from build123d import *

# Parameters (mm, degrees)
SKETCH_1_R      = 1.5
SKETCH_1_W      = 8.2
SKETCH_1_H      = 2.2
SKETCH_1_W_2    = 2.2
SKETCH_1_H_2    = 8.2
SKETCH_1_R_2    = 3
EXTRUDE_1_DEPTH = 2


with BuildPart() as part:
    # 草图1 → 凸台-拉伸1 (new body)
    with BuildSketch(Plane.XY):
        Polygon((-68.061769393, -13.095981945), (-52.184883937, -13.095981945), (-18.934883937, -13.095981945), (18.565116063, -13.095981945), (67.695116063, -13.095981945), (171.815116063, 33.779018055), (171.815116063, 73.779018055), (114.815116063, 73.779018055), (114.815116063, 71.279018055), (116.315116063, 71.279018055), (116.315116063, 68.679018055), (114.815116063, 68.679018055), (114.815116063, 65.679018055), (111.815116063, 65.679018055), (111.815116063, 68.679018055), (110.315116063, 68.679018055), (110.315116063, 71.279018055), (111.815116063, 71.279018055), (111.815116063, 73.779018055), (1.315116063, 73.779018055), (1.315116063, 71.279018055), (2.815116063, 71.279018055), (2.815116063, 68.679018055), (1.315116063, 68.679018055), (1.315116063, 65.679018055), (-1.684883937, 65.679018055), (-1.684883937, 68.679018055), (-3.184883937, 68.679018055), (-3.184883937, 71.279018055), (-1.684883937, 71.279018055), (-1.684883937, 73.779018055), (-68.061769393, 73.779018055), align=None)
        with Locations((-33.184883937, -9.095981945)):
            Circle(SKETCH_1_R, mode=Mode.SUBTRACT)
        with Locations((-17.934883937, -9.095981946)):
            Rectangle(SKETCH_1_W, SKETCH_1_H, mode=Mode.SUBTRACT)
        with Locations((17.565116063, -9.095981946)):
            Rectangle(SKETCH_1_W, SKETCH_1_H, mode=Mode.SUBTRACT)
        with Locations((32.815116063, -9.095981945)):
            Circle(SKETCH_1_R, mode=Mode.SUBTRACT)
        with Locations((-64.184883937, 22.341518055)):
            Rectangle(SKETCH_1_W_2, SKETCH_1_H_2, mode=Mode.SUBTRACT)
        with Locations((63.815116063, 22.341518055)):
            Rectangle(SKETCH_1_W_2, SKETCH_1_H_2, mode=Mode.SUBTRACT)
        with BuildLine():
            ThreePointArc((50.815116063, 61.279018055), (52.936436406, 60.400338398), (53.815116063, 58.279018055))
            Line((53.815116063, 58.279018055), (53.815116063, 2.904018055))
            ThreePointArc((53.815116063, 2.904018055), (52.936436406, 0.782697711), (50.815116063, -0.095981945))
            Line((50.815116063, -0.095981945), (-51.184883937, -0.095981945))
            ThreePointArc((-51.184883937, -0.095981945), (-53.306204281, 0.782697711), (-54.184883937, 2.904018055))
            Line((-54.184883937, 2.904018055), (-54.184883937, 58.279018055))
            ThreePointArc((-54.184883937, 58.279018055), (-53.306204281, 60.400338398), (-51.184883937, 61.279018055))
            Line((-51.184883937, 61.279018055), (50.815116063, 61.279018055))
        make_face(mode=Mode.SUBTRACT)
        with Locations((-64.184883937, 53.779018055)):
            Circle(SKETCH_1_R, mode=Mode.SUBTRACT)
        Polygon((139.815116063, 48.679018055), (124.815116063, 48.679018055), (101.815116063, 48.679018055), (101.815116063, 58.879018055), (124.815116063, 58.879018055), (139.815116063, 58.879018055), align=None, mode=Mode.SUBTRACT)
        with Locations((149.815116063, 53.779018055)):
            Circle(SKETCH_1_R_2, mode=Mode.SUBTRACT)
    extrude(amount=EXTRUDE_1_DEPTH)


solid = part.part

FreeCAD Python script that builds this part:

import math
import FreeCAD as App
import Part
import Sketcher
from FreeCAD import Vector
Q = App.Units.Quantity

doc = App.newDocument("Part")
body = doc.addObject("PartDesign::Body", "Body")

sketch1 = body.newObject("Sketcher::SketchObject", "Sketch")
sketch1.AttachmentSupport = (doc.getObject("XY_Plane"), [""])
sketch1.MapMode = "FlatFace"
sketch1.addGeometry([
    Part.LineSegment(Vector(-68.1, -13.1, 0), Vector(67.7, -13.1, 0)),
    Part.LineSegment(Vector(67.7, -13.1, 0), Vector(171.8, 33.8, 0)),
    Part.LineSegment(Vector(171.8, 33.8, 0), Vector(171.8, 73.8, 0)),
    Part.LineSegment(Vector(171.8, 73.8, 0), Vector(114.8, 73.8, 0)),
    Part.LineSegment(Vector(114.8, 73.8, 0), Vector(114.8, 71.3, 0)),
    Part.LineSegment(Vector(114.8, 71.3, 0), Vector(116.3, 71.3, 0)),
    Part.LineSegment(Vector(116.3, 71.3, 0), Vector(116.3, 68.7, 0)),
    Part.LineSegment(Vector(116.3, 68.7, 0), Vector(114.8, 68.7, 0)),
    Part.LineSegment(Vector(114.8, 68.7, 0), Vector(114.8, 65.7, 0)),
    Part.LineSegment(Vector(114.8, 65.7, 0), Vector(111.8, 65.7, 0)),
    Part.LineSegment(Vector(111.8, 65.7, 0), Vector(111.8, 68.7, 0)),
    Part.LineSegment(Vector(111.8, 68.7, 0), Vector(110.3, 68.7, 0)),
    Part.LineSegment(Vector(110.3, 68.7, 0), Vector(110.3, 71.3, 0)),
    Part.LineSegment(Vector(110.3, 71.3, 0), Vector(111.8, 71.3, 0)),
    Part.LineSegment(Vector(111.8, 71.3, 0), Vector(111.8, 73.8, 0)),
    Part.LineSegment(Vector(111.8, 73.8, 0), Vector(1.3, 73.8, 0)),
    Part.LineSegment(Vector(1.3, 73.8, 0), Vector(1.3, 71.3, 0)),
    Part.LineSegment(Vector(1.3, 71.3, 0), Vector(2.8, 71.3, 0)),
    Part.LineSegment(Vector(2.8, 71.3, 0), Vector(2.8, 68.7, 0)),
    Part.LineSegment(Vector(2.8, 68.7, 0), Vector(1.3, 68.7, 0)),
    Part.LineSegment(Vector(1.3, 68.7, 0), Vector(1.3, 65.7, 0)),
    Part.LineSegment(Vector(1.3, 65.7, 0), Vector(-1.7, 65.7, 0)),
    Part.LineSegment(Vector(-1.7, 65.7, 0), Vector(-1.7, 68.7, 0)),
    Part.LineSegment(Vector(-1.7, 68.7, 0), Vector(-3.2, 68.7, 0)),
    Part.LineSegment(Vector(-3.2, 68.7, 0), Vector(-3.2, 71.3, 0)),
    Part.LineSegment(Vector(-3.2, 71.3, 0), Vector(-1.7, 71.3, 0)),
    Part.LineSegment(Vector(-1.7, 71.3, 0), Vector(-1.7, 73.8, 0)),
    Part.LineSegment(Vector(-1.7, 73.8, 0), Vector(-68.1, 73.8, 0)),
    Part.LineSegment(Vector(-68.1, 73.8, 0), Vector(-68.1, -13.1, 0)),
    Part.Circle(Vector(-33.2, -9.1, 0), Vector(0, 0, 1), 1.5),
    Part.LineSegment(Vector(-13.8, -10.2, 0), Vector(-22, -10.2, 0)),
    Part.LineSegment(Vector(-22, -10.2, 0), Vector(-22, -8, 0)),
    Part.LineSegment(Vector(-22, -8, 0), Vector(-13.8, -8, 0)),
    Part.LineSegment(Vector(-13.8, -8, 0), Vector(-13.8, -10.2, 0)),
    Part.LineSegment(Vector(21.7, -10.2, 0), Vector(13.5, -10.2, 0)),
    Part.LineSegment(Vector(13.5, -10.2, 0), Vector(13.5, -8, 0)),
    Part.LineSegment(Vector(13.5, -8, 0), Vector(21.7, -8, 0)),
    Part.LineSegment(Vector(21.7, -8, 0), Vector(21.7, -10.2, 0)),
    Part.Circle(Vector(32.8, -9.1, 0), Vector(0, 0, 1), 1.5),
    Part.LineSegment(Vector(-63.1, 18.2, 0), Vector(-65.3, 18.2, 0)),
    Part.LineSegment(Vector(-65.3, 18.2, 0), Vector(-65.3, 26.4, 0)),
    Part.LineSegment(Vector(-65.3, 26.4, 0), Vector(-63.1, 26.4, 0)),
    Part.LineSegment(Vector(-63.1, 26.4, 0), Vector(-63.1, 18.2, 0)),
    Part.LineSegment(Vector(64.9, 18.2, 0), Vector(62.7, 18.2, 0)),
    Part.LineSegment(Vector(62.7, 18.2, 0), Vector(62.7, 26.4, 0)),
    Part.LineSegment(Vector(62.7, 26.4, 0), Vector(64.9, 26.4, 0)),
    Part.LineSegment(Vector(64.9, 26.4, 0), Vector(64.9, 18.2, 0)),
    Part.LineSegment(Vector(-51.2, 61.3, 0), Vector(50.8, 61.3, 0)),
    Part.ArcOfCircle(Part.Circle(Vector(50.8, 58.3, 0), Vector(0, 0, 1), 3), math.radians(0), math.radians(90)),
    Part.LineSegment(Vector(53.8, 58.3, 0), Vector(53.8, 2.9, 0)),
    Part.ArcOfCircle(Part.Circle(Vector(50.8, 2.9, 0), Vector(0, 0, 1), 3), math.radians(-90), math.radians(0)),
    Part.LineSegment(Vector(50.8, -0.1, 0), Vector(-51.2, -0.1, 0)),
    Part.ArcOfCircle(Part.Circle(Vector(-51.2, 2.9, 0), Vector(0, 0, 1), 3), math.radians(180), math.radians(270)),
    Part.LineSegment(Vector(-54.2, 2.9, 0), Vector(-54.2, 58.3, 0)),
    Part.ArcOfCircle(Part.Circle(Vector(-51.2, 58.3, 0), Vector(0, 0, 1), 3), math.radians(90), math.radians(180)),
    Part.Circle(Vector(-64.2, 53.8, 0), Vector(0, 0, 1), 1.5),
    Part.LineSegment(Vector(139.8, 58.9, 0), Vector(139.8, 48.7, 0)),
    Part.LineSegment(Vector(139.8, 48.7, 0), Vector(101.8, 48.7, 0)),
    Part.LineSegment(Vector(101.8, 48.7, 0), Vector(101.8, 58.9, 0)),
    Part.LineSegment(Vector(101.8, 58.9, 0), Vector(139.8, 58.9, 0)),
    Part.Circle(Vector(149.8, 53.8, 0), Vector(0, 0, 1), 3),
], False)
sketch1.addConstraint([
    Sketcher.Constraint("Coincident", 0, 2, 1, 1),
    Sketcher.Constraint("Coincident", 1, 2, 2, 1),
    Sketcher.Constraint("Coincident", 2, 2, 3, 1),
    Sketcher.Constraint("Coincident", 3, 2, 4, 1),
    Sketcher.Constraint("Coincident", 4, 2, 5, 1),
    Sketcher.Constraint("Coincident", 5, 2, 6, 1),
    Sketcher.Constraint("Coincident", 6, 2, 7, 1),
    Sketcher.Constraint("Coincident", 7, 2, 8, 1),
    Sketcher.Constraint("Coincident", 8, 2, 9, 1),
    Sketcher.Constraint("Coincident", 9, 2, 10, 1),
    Sketcher.Constraint("Coincident", 10, 2, 11, 1),
    Sketcher.Constraint("Coincident", 11, 2, 12, 1),
    Sketcher.Constraint("Coincident", 12, 2, 13, 1),
    Sketcher.Constraint("Coincident", 13, 2, 14, 1),
    Sketcher.Constraint("Coincident", 14, 2, 15, 1),
    Sketcher.Constraint("Coincident", 15, 2, 16, 1),
    Sketcher.Constraint("Coincident", 16, 2, 17, 1),
    Sketcher.Constraint("Coincident", 17, 2, 18, 1),
    Sketcher.Constraint("Coincident", 18, 2, 19, 1),
    Sketcher.Constraint("Coincident", 19, 2, 20, 1),
    Sketcher.Constraint("Coincident", 20, 2, 21, 1),
    Sketcher.Constraint("Coincident", 21, 2, 22, 1),
    Sketcher.Constraint("Coincident", 22, 2, 23, 1),
    Sketcher.Constraint("Coincident", 23, 2, 24, 1),
    Sketcher.Constraint("Coincident", 24, 2, 25, 1),
    Sketcher.Constraint("Coincident", 25, 2, 26, 1),
    Sketcher.Constraint("Coincident", 26, 2, 27, 1),
    Sketcher.Constraint("Coincident", 27, 2, 28, 1),
    Sketcher.Constraint("Coincident", 28, 2, 0, 1),
    Sketcher.Constraint("Coincident", 30, 2, 31, 1),
    Sketcher.Constraint("Coincident", 31, 2, 32, 1),
    Sketcher.Constraint("Coincident", 32, 2, 33, 1),
    Sketcher.Constraint("Coincident", 33, 2, 30, 1),
    Sketcher.Constraint("Coincident", 34, 2, 35, 1),
    Sketcher.Constraint("Coincident", 35, 2, 36, 1),
    Sketcher.Constraint("Coincident", 36, 2, 37, 1),
    Sketcher.Constraint("Coincident", 37, 2, 34, 1),
    Sketcher.Constraint("Coincident", 39, 2, 40, 1),
    Sketcher.Constraint("Coincident", 40, 2, 41, 1),
    Sketcher.Constraint("Coincident", 41, 2, 42, 1),
    Sketcher.Constraint("Coincident", 42, 2, 39, 1),
    Sketcher.Constraint("Coincident", 43, 2, 44, 1),
    Sketcher.Constraint("Coincident", 44, 2, 45, 1),
    Sketcher.Constraint("Coincident", 45, 2, 46, 1),
    Sketcher.Constraint("Coincident", 46, 2, 43, 1),
    Sketcher.Constraint("Tangent", 47, 2, 48, 2),
    Sketcher.Constraint("Tangent", 48, 1, 49, 1),
    Sketcher.Constraint("Tangent", 49, 2, 50, 2),
    Sketcher.Constraint("Tangent", 50, 1, 51, 1),
    Sketcher.Constraint("Tangent", 51, 2, 52, 2),
    Sketcher.Constraint("Tangent", 52, 1, 53, 1),
    Sketcher.Constraint("Tangent", 53, 2, 54, 2),
    Sketcher.Constraint("Tangent", 54, 1, 47, 1),
    Sketcher.Constraint("Coincident", 56, 2, 57, 1),
    Sketcher.Constraint("Coincident", 57, 2, 58, 1),
    Sketcher.Constraint("Coincident", 58, 2, 59, 1),
    Sketcher.Constraint("Coincident", 59, 2, 56, 1),
    Sketcher.Constraint("Horizontal", 0),
    Sketcher.Constraint("Vertical", 2),
    Sketcher.Constraint("Horizontal", 3),
    Sketcher.Constraint("Vertical", 4),
    Sketcher.Constraint("Horizontal", 5),
    Sketcher.Constraint("Vertical", 6),
    Sketcher.Constraint("Horizontal", 7),
    Sketcher.Constraint("Vertical", 8),
    Sketcher.Constraint("Horizontal", 9),
    Sketcher.Constraint("Vertical", 10),
    Sketcher.Constraint("Horizontal", 11),
    Sketcher.Constraint("Vertical", 12),
    Sketcher.Constraint("Horizontal", 13),
    Sketcher.Constraint("Vertical", 14),
    Sketcher.Constraint("Horizontal", 15),
    Sketcher.Constraint("Vertical", 16),
    Sketcher.Constraint("Horizontal", 17),
    Sketcher.Constraint("Vertical", 18),
    Sketcher.Constraint("Horizontal", 19),
    Sketcher.Constraint("Vertical", 20),
    Sketcher.Constraint("Horizontal", 21),
    Sketcher.Constraint("Vertical", 22),
    Sketcher.Constraint("Horizontal", 23),
    Sketcher.Constraint("Vertical", 24),
    Sketcher.Constraint("Horizontal", 25),
    Sketcher.Constraint("Vertical", 26),
    Sketcher.Constraint("Horizontal", 27),
    Sketcher.Constraint("Vertical", 28),
    Sketcher.Constraint("Horizontal", 30),
    Sketcher.Constraint("Vertical", 31),
    Sketcher.Constraint("Horizontal", 32),
    Sketcher.Constraint("Vertical", 33),
    Sketcher.Constraint("Horizontal", 34),
    Sketcher.Constraint("Vertical", 35),
    Sketcher.Constraint("Horizontal", 36),
    Sketcher.Constraint("Vertical", 37),
    Sketcher.Constraint("Horizontal", 39),
    Sketcher.Constraint("Vertical", 40),
    Sketcher.Constraint("Horizontal", 41),
    Sketcher.Constraint("Vertical", 42),
    Sketcher.Constraint("Horizontal", 43),
    Sketcher.Constraint("Vertical", 44),
    Sketcher.Constraint("Horizontal", 45),
    Sketcher.Constraint("Vertical", 46),
    Sketcher.Constraint("Horizontal", 47),
    Sketcher.Constraint("Vertical", 49),
    Sketcher.Constraint("Horizontal", 51),
    Sketcher.Constraint("Vertical", 53),
    Sketcher.Constraint("Vertical", 56),
    Sketcher.Constraint("Horizontal", 57),
    Sketcher.Constraint("Vertical", 58),
    Sketcher.Constraint("Horizontal", 59),
    Sketcher.Constraint("Equal", 29, 38),
    Sketcher.Constraint("Equal", 48, 50),
    Sketcher.Constraint("Equal", 50, 52),
    Sketcher.Constraint("Equal", 52, 54),
    Sketcher.Constraint("Equal", 38, 55),
    Sketcher.Constraint("Equal", 54, 60),
    Sketcher.Constraint("Horizontal", 29, 3, 38, 3),
    Sketcher.Constraint("Horizontal", 55, 3, 60, 3),
    Sketcher.Constraint("Horizontal", 7, 2, 10, 2),
    Sketcher.Constraint("Horizontal", 5, 2, 12, 2),
    Sketcher.Constraint("Horizontal", 3, 2, 14, 2),
    Sketcher.Constraint("Horizontal", 13, 2, 16, 2),
    Sketcher.Constraint("Horizontal", 11, 2, 18, 2),
    Sketcher.Constraint("Horizontal", 9, 2, 20, 2),
    Sketcher.Constraint("Horizontal", 19, 2, 22, 2),
    Sketcher.Constraint("Horizontal", 17, 2, 24, 2),
    Sketcher.Constraint("Horizontal", 15, 2, 26, 2),
    Sketcher.Constraint("Horizontal", 33, 2, 34, 2),
    Sketcher.Constraint("Horizontal", 32, 2, 35, 2),
    Sketcher.Constraint("Horizontal", 42, 2, 43, 2),
    Sketcher.Constraint("Horizontal", 41, 2, 44, 2),
    Sketcher.Constraint("Vertical", 4, 2, 7, 2),
    Sketcher.Constraint("Vertical", 10, 2, 13, 2),
    Sketcher.Constraint("Vertical", 16, 2, 19, 2),
    Sketcher.Constraint("Vertical", 22, 2, 25, 2),
    Sketcher.Constraint("Equal", 7, 11),
    Sketcher.Constraint("Equal", 13, 17),
    Sketcher.Constraint("Equal", 9, 21),
    Sketcher.Constraint("Equal", 19, 23),
    Sketcher.Constraint("Equal", 32, 34),
    Sketcher.Constraint("Equal", 41, 43),
    Sketcher.Constraint("Equal", 21, 8),
    Sketcher.Constraint("Equal", 45, 31),
    Sketcher.Constraint("Equal", 36, 40),
    Sketcher.Constraint("Diameter", 29, Q("3 mm")),
    Sketcher.Constraint("Diameter", 60, Q("6 mm")),
    Sketcher.Constraint("DistanceX", 3, 2, 3, 1, Q("57 mm")),
    Sketcher.Constraint("DistanceX", 9, 2, 9, 1, Q("3 mm")),
    Sketcher.Constraint("DistanceX", 47, 1, 47, 2, Q("102 mm")),
    Sketcher.Constraint("DistanceX", 57, 2, 57, 1, Q("38 mm")),
    Sketcher.Constraint("DistanceY", 2, 1, 2, 2, Q("40 mm")),
    Sketcher.Constraint("DistanceX", 5, 1, 5, 2, Q("1.5 mm")),
    Sketcher.Constraint("DistanceX", 15, 2, 15, 1, Q("110.5 mm")),
    Sketcher.Constraint("DistanceX", 30, 2, 30, 1, Q("8.2 mm")),
    Sketcher.Constraint("DistanceX", 39, 2, 39, 1, Q("2.2 mm")),
    Sketcher.Constraint("DistanceY", 4, 2, 4, 1, Q("2.5 mm")),
    Sketcher.Constraint("DistanceY", 6, 2, 6, 1, Q("2.6 mm")),
    Sketcher.Constraint("DistanceY", 56, 2, 56, 1, Q("10.2 mm")),
    Sketcher.Constraint("DistanceY", 28, 2, 28, 1, Q("86.875 mm")),
    Sketcher.Constraint("DistanceY", 49, 2, 49, 1, Q("55.375 mm")),
    Sketcher.Constraint("DistanceX", 0, 1, 0, 2, Q("135.756885 mm")),
    Sketcher.Constraint("DistanceX", 27, 2, 27, 1, Q("66.376885 mm")),
    Sketcher.Constraint("DistanceY", 29, 3, -1, 1, Q("9.095982 mm")),
    Sketcher.Constraint("DistanceY", -1, 1, 48, 3, Q("58.279018 mm")),
    Sketcher.Constraint("DistanceY", -1, 1, 55, 3, Q("53.779018 mm")),
    Sketcher.Constraint("DistanceY", 0, 2, -1, 1, Q("13.095982 mm")),
    Sketcher.Constraint("DistanceX", 27, 2, -1, 1, Q("68.061769 mm")),
    Sketcher.Constraint("DistanceY", 30, 2, -1, 1, Q("10.195982 mm")),
    Sketcher.Constraint("DistanceY", -1, 1, 39, 2, Q("18.241518 mm")),
    Sketcher.Constraint("DistanceY", -1, 1, 56, 2, Q("48.679018 mm")),
    Sketcher.Constraint("DistanceX", 29, 3, -1, 1, Q("33.184884 mm")),
    Sketcher.Constraint("DistanceX", -1, 1, 38, 3, Q("32.815116 mm")),
    Sketcher.Constraint("DistanceX", -1, 1, 48, 3, Q("50.815116 mm")),
    Sketcher.Constraint("DistanceX", 55, 3, -1, 1, Q("64.184884 mm")),
    Sketcher.Constraint("DistanceX", -1, 1, 60, 3, Q("149.815116 mm")),
    Sketcher.Constraint("DistanceX", 30, 2, -1, 1, Q("22.034884 mm")),
    Sketcher.Constraint("DistanceX", -1, 1, 34, 2, Q("13.465116 mm")),
    Sketcher.Constraint("DistanceX", 39, 2, -1, 1, Q("65.284884 mm")),
    Sketcher.Constraint("DistanceX", -1, 1, 43, 2, Q("62.715116 mm")),
    Sketcher.Constraint("DistanceX", -1, 1, 56, 2, Q("139.815116 mm")),
])
pad1 = body.newObject("PartDesign::Pad", "Pad")
pad1.Profile = sketch1
pad1.Length = 2

doc.recompute()
